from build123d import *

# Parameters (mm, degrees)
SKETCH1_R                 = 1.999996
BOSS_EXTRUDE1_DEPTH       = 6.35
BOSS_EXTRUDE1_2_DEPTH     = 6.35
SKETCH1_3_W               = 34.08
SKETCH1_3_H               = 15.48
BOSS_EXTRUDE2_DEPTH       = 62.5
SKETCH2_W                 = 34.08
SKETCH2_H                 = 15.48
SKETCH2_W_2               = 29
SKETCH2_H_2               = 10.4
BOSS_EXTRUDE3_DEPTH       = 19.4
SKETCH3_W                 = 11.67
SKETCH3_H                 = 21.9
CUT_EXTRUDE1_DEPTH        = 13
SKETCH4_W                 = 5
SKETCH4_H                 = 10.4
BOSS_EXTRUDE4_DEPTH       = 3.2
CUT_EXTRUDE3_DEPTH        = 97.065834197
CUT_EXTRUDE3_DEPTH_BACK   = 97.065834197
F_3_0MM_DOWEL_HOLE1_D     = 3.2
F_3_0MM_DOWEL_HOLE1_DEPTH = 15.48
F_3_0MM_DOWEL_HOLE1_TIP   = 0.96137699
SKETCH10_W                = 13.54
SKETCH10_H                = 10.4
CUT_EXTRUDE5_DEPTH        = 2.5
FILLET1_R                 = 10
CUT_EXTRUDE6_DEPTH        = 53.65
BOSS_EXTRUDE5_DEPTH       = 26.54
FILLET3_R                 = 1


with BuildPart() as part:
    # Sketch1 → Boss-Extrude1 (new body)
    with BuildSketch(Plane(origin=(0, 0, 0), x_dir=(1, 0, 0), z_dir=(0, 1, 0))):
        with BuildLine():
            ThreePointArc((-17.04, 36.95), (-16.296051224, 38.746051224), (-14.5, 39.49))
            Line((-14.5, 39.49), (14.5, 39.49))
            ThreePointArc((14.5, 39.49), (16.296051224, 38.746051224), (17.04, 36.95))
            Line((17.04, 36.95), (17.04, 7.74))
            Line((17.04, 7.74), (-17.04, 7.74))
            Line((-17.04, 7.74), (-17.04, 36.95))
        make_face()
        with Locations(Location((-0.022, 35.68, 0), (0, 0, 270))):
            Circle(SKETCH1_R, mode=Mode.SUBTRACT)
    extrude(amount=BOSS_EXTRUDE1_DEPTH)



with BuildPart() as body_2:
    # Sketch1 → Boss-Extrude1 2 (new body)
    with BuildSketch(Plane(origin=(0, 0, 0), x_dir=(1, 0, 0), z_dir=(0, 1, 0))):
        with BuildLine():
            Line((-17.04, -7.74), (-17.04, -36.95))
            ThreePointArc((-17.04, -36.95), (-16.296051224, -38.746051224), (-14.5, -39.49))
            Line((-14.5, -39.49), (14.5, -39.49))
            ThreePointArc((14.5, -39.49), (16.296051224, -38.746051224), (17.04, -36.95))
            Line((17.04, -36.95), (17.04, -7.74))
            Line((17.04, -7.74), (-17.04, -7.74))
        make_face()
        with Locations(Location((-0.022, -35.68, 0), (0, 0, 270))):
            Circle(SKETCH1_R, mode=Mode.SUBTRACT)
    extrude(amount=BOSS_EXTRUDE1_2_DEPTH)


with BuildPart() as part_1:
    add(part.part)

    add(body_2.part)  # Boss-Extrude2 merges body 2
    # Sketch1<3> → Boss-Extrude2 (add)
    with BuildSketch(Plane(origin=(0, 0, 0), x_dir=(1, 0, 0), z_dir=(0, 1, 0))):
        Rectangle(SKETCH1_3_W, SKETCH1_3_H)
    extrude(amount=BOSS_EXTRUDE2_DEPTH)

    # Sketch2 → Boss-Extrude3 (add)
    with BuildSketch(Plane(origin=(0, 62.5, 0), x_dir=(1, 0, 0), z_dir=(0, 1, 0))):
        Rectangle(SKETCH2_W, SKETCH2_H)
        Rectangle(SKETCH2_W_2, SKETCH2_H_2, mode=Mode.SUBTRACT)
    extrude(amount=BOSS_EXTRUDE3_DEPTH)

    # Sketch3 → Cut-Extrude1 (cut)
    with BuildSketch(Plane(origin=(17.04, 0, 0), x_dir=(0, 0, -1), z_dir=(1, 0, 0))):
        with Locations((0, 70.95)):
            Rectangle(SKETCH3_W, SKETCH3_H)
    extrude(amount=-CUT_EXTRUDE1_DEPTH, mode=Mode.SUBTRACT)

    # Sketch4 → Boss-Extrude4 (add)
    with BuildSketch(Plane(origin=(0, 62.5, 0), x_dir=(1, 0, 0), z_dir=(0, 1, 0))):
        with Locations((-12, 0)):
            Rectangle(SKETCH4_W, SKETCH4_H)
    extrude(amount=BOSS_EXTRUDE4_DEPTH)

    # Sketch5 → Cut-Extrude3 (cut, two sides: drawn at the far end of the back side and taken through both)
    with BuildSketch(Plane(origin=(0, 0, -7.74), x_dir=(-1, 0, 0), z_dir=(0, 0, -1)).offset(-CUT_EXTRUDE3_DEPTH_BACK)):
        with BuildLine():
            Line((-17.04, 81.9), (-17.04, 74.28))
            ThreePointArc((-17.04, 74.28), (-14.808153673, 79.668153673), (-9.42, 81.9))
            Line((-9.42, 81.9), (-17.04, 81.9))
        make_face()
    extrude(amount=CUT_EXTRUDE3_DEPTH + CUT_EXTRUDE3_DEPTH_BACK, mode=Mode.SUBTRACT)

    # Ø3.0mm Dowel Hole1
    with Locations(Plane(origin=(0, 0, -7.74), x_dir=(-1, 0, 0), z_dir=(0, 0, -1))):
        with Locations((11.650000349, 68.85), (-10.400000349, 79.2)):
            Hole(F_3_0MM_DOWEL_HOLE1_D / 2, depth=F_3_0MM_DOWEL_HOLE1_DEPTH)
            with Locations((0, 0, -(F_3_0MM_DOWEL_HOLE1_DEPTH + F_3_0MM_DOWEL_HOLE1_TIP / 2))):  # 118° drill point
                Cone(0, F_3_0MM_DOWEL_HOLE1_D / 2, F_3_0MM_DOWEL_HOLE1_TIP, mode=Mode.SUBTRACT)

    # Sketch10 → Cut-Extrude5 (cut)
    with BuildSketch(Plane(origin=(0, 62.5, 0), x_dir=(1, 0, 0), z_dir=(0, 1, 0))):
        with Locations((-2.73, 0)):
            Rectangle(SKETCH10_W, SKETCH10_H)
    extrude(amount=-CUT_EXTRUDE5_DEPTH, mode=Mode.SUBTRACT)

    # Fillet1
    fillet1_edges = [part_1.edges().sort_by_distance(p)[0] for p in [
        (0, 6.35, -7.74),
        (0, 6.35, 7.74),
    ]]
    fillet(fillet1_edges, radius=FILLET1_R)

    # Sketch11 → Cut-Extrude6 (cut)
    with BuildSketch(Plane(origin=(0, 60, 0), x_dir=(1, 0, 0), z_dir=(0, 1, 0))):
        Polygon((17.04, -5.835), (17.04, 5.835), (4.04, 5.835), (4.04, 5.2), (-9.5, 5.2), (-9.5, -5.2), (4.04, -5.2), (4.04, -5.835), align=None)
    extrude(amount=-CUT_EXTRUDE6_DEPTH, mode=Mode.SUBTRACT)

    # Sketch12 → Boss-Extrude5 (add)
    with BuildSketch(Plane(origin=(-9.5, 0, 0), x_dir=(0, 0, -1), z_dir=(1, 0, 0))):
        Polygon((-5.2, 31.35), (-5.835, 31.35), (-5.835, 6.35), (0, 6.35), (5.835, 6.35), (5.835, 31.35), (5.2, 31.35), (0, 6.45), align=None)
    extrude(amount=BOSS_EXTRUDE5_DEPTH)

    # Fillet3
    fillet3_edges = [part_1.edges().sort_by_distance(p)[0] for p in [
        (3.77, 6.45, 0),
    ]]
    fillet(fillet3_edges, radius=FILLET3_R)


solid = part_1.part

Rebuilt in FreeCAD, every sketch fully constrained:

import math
import FreeCAD as App
import Part
import Sketcher
from FreeCAD import Vector


def edges_at(feature, points):
    """Names of the edges that pass closest to the given points."""
    edges = feature.Shape.Edges
    near = lambda p: min(range(len(edges)), key=lambda i: edges[i].distToShape(Part.Vertex(*p))[0])
    return sorted({f"Edge{near(p) + 1}" for p in points})


def add_polygon(sketch, points):
    """Adds a closed chain of lines whose ends are joined by coincident constraints."""
    first, n = sketch.GeometryCount, len(points)
    for a, b in zip(points, points[1:] + points[:1]):
        sketch.addGeometry(Part.LineSegment(App.Vector(*a, 0), App.Vector(*b, 0)), False)
    for i in range(n):
        sketch.addConstraint(Sketcher.Constraint("Coincident", first + i, 2, first + (i + 1) % n, 1))

doc = App.newDocument("Part")
params = doc.addObject("Spreadsheet::Sheet", "Params")
for row, (alias, value) in enumerate([
    ("sketch1_width", "29 mm"),
    ("sketch1_radius", "2.54 mm"),
    ("sketch1_height", "29.21 mm"),
    ("pad1_length", "6.35 mm"),
    ("sketch2_width", "29 mm"),
    ("sketch2_radius", "2.54 mm"),
    ("sketch2_height", "29.21 mm"),
    ("pad2_length", "6.35 mm"),
    ("sketch3_width", "34.08 mm"),
    ("sketch3_height", "15.48 mm"),
    ("pad3_length", "62.5 mm"),
    ("sketch4_width", "29 mm"),
    ("sketch4_height", "10.4 mm"),
    ("sketch4_width2", "34.08 mm"),
    ("sketch4_height2", "15.48 mm"),
    ("pad4_length", "19.4 mm"),
    ("sketch5_width", "21.9 mm"),
    ("sketch5_height", "11.67 mm"),
    ("pocket1_length", "13 mm"),
    ("sketch6_width", "5 mm"),
    ("sketch6_height", "10.4 mm"),
    ("pad5_length", "3.2 mm"),
    ("sketch7_radius", "7.62 mm"),
    ("sketch8_diameter", "3.2 mm"),
    ("hole_diameter", "3.2 mm"),
    ("hole_depth", "15.48 mm"),
    ("sketch9_height", "10.4 mm"),
    ("sketch9_width", "13.54 mm"),
    ("pocket3_length", "2.5 mm"),
    ("fillet_radius", "10 mm"),
    ("sketch10_width", "13 mm"),
    ("sketch10_height", "10.4 mm"),
    ("sketch10_width2", "13.54 mm"),
    ("sketch10_height2", "11.67 mm"),
    ("pocket4_length", "53.65 mm"),
    ("sketch11_width", "25 mm"),
    ("sketch11_height", "11.67 mm"),
    ("pad6_length", "26.54 mm"),
    ("fillet2_radius", "1 mm"),
], start=1):
    params.set(f"A{row}", alias)
    params.set(f"B{row}", "=" + value)
    params.setAlias(f"B{row}", alias)

body = doc.addObject("PartDesign::Body", "Body")

# Sketch on XZ plane
sketch1 = doc.addObject("Sketcher::SketchObject", "Sketch")
body.addObject(sketch1)
sketch1.AttachmentSupport = (doc.XZ_Plane, [""])
sketch1.MapMode = "FlatFace"
sketch1.addGeometry([
    Part.ArcOfCircle(Part.Circle(Vector(-14.5, -36.9, 0), Vector(0, 0, 1), 2.5), math.radians(-180), math.radians(-90)),  # 0
    Part.LineSegment(Vector(-17, -37, 0), Vector(-17, -7.7, 0)),  # 1
    Part.LineSegment(Vector(-17, -7.7, 0), Vector(17, -7.7, 0)),  # 2
    Part.LineSegment(Vector(17, -7.7, 0), Vector(17, -37, 0)),  # 3
    Part.ArcOfCircle(Part.Circle(Vector(14.5, -36.9, 0), Vector(0, 0, 1), 2.5), math.radians(-90), math.radians(0)),  # 4
    Part.LineSegment(Vector(14.5, -39.5, 0), Vector(-14.5, -39.5, 0)),  # 5
    Part.Circle(Vector(0, -35.7, 0), Vector(0, 0, 1), 2),  # 6
], False)
sketch1.addConstraint([
    Sketcher.Constraint("Tangent", 0, 1, 1, 1),
    Sketcher.Constraint("Coincident", 1, 2, 2, 1),
    Sketcher.Constraint("Coincident", 2, 2, 3, 1),
    Sketcher.Constraint("Tangent", 3, 2, 4, 2),
    Sketcher.Constraint("Tangent", 4, 1, 5, 1),
    Sketcher.Constraint("Tangent", 5, 2, 0, 2),
    Sketcher.Constraint("Vertical", 1),
    Sketcher.Constraint("Horizontal", 2),
    Sketcher.Constraint("Vertical", 3),
    Sketcher.Constraint("Horizontal", 5),
    Sketcher.Constraint("Equal", 0, 4),
    Sketcher.Constraint("DistanceX", 5, 2, 5, 1, 29.0),
    Sketcher.Constraint("Radius", 0, 2.54),
    Sketcher.Constraint("DistanceY", 1, 1, 1, 2, 29.21),
    Sketcher.Constraint("DistanceX", 0, 3, -1, 1, 14.5),
    Sketcher.Constraint("DistanceY", 0, 3, -1, 1, 36.95),
    Sketcher.Constraint("DistanceY", 6, 3, -1, 1, 35.68),
    Sketcher.Constraint("Diameter", 6, 3.999992),
    Sketcher.Constraint("DistanceX", 6, 3, -1, 1, 0.022),
])
sketch1.setExpression("Constraints[11]", "Params.sketch1_width")
sketch1.setExpression("Constraints[12]", "Params.sketch1_radius")
sketch1.setExpression("Constraints[13]", "Params.sketch1_height")
pad1 = doc.addObject("PartDesign::Pad", "Pad")
body.addObject(pad1)
pad1.Profile = sketch1
pad1.setExpression("Length", "Params.pad1_length")
pad1.Reversed = True
body2 = doc.addObject("PartDesign::Body", "Body001")

# Sketch on XZ plane
sketch2 = doc.addObject("Sketcher::SketchObject", "Sketch001")
body2.addObject(sketch2)
sketch2.AttachmentSupport = (doc.getObject("XZ_Plane001"), [""])
sketch2.MapMode = "FlatFace"
sketch2.addGeometry([
    Part.LineSegment(Vector(-17, 7.7, 0), Vector(-17, 37, 0)),  # 0
    Part.ArcOfCircle(Part.Circle(Vector(-14.5, 36.9, 0), Vector(0, 0, 1), 2.5), math.radians(90), math.radians(180)),  # 1
    Part.LineSegment(Vector(-14.5, 39.5, 0), Vector(14.5, 39.5, 0)),  # 2
    Part.ArcOfCircle(Part.Circle(Vector(14.5, 36.9, 0), Vector(0, 0, 1), 2.5), math.radians(0), math.radians(90)),  # 3
    Part.LineSegment(Vector(17, 37, 0), Vector(17, 7.7, 0)),  # 4
    Part.LineSegment(Vector(17, 7.7, 0), Vector(-17, 7.7, 0)),  # 5
    Part.Circle(Vector(0, 35.7, 0), Vector(0, 0, 1), 2),  # 6
], False)
sketch2.addConstraint([
    Sketcher.Constraint("Tangent", 0, 2, 1, 2),
    Sketcher.Constraint("Tangent", 1, 1, 2, 1),
    Sketcher.Constraint("Tangent", 2, 2, 3, 2),
    Sketcher.Constraint("Tangent", 3, 1, 4, 1),
    Sketcher.Constraint("Coincident", 4, 2, 5, 1),
    Sketcher.Constraint("Coincident", 5, 2, 0, 1),
    Sketcher.Constraint("Vertical", 0),
    Sketcher.Constraint("Horizontal", 2),
    Sketcher.Constraint("Vertical", 4),
    Sketcher.Constraint("Horizontal", 5),
    Sketcher.Constraint("Equal", 1, 3),
    Sketcher.Constraint("DistanceX", 2, 1, 2, 2, 29.0),
    Sketcher.Constraint("Radius", 1, 2.54),
    Sketcher.Constraint("DistanceY", 0, 1, 0, 2, 29.21),
    Sketcher.Constraint("DistanceX", 1, 3, -1, 1, 14.5),
    Sketcher.Constraint("DistanceY", -1, 1, 1, 3, 36.95),
    Sketcher.Constraint("DistanceY", -1, 1, 6, 3, 35.68),
    Sketcher.Constraint("Diameter", 6, 3.999992),
    Sketcher.Constraint("DistanceX", 6, 3, -1, 1, 0.022),
])
sketch2.setExpression("Constraints[11]", "Params.sketch2_width")
sketch2.setExpression("Constraints[12]", "Params.sketch2_radius")
sketch2.setExpression("Constraints[13]", "Params.sketch2_height")
pad2 = doc.addObject("PartDesign::Pad", "Pad001")
body2.addObject(pad2)
pad2.Profile = sketch2
pad2.setExpression("Length", "Params.pad2_length")
pad2.Reversed = True
body.AllowCompound = True
doc.recompute()

boolean = doc.addObject("PartDesign::Boolean", "Boolean")
body.addObject(boolean)
boolean.Type = "Fuse"
boolean.addObjects([body2])

# Sketch on XZ plane
sketch3 = doc.addObject("Sketcher::SketchObject", "Sketch002")
body.addObject(sketch3)
sketch3.AttachmentSupport = (doc.XZ_Plane, [""])
sketch3.MapMode = "FlatFace"
add_polygon(sketch3, [(-17, -8), (-17, 8), (17, 8), (17, -8)])  # lines 0-3
sketch3.addConstraint([
    Sketcher.Constraint("Vertical", 0),
    Sketcher.Constraint("Horizontal", 1),
    Sketcher.Constraint("Vertical", 2),
    Sketcher.Constraint("Horizontal", 3),
    Sketcher.Constraint("Symmetric", 0, 2, 2, 2, -1, 1),
    Sketcher.Constraint("DistanceX", 1, 1, 1, 2, 34.08),
    Sketcher.Constraint("DistanceY", 0, 1, 0, 2, 15.48),
])
sketch3.setExpression("Constraints[9]", "Params.sketch3_width")
sketch3.setExpression("Constraints[10]", "Params.sketch3_height")
pad3 = doc.addObject("PartDesign::Pad", "Pad002")
body.addObject(pad3)
pad3.Profile = sketch3
pad3.setExpression("Length", "Params.pad3_length")
pad3.Reversed = True

# Sketch on XZ plane
sketch4 = doc.addObject("Sketcher::SketchObject", "Sketch003")
body.addObject(sketch4)
sketch4.AttachmentSupport = (doc.XZ_Plane, [""])
sketch4.MapMode = "FlatFace"
sketch4.AttachmentOffset = App.Placement(Vector(0, 0, -62.5), App.Rotation())
add_polygon(sketch4, [(-17, -8), (-17, 8), (17, 8), (17, -8)])  # lines 0-3
add_polygon(sketch4, [(14, 5), (-14, 5), (-14, -5), (14, -5)])  # lines 4-7
sketch4.addConstraint([
    Sketcher.Constraint("Vertical", 0),
    Sketcher.Constraint("Horizontal", 1),
    Sketcher.Constraint("Vertical", 2),
    Sketcher.Constraint("Horizontal", 3),
    Sketcher.Constraint("Horizontal", 4),
    Sketcher.Constraint("Vertical", 5),
    Sketcher.Constraint("Horizontal", 6),
    Sketcher.Constraint("Vertical", 7),
    Sketcher.Constraint("Symmetric", 0, 2, 2, 2, -1, 1),
    Sketcher.Constraint("Symmetric", 4, 2, 6, 2, -1, 1),
    Sketcher.Constraint("DistanceX", 4, 2, 4, 1, 29.0),
    Sketcher.Constraint("DistanceY", 5, 2, 5, 1, 10.4),
    Sketcher.Constraint("DistanceX", 1, 1, 1, 2, 34.08),
    Sketcher.Constraint("DistanceY", 0, 1, 0, 2, 15.48),
])
sketch4.setExpression("Constraints[18]", "Params.sketch4_width")
sketch4.setExpression("Constraints[19]", "Params.sketch4_height")
sketch4.setExpression("Constraints[20]", "Params.sketch4_width2")
sketch4.setExpression("Constraints[21]", "Params.sketch4_height2")
pad4 = doc.addObject("PartDesign::Pad", "Pad003")
body.addObject(pad4)
pad4.Profile = sketch4
pad4.setExpression("Length", "Params.pad4_length")
pad4.Reversed = True

# Sketch on YZ plane
sketch5 = doc.addObject("Sketcher::SketchObject", "Sketch004")
body.addObject(sketch5)
sketch5.AttachmentSupport = (doc.YZ_Plane, [""])
sketch5.MapMode = "FlatFace"
sketch5.AttachmentOffset = App.Placement(Vector(0, 0, 17.04), App.Rotation())
add_polygon(sketch5, [(82, 6), (60, 6), (60, -6), (82, -6)])  # lines 0-3
sketch5.addConstraint([
    Sketcher.Constraint("Horizontal", 0),
    Sketcher.Constraint("Vertical", 1),
    Sketcher.Constraint("Horizontal", 2),
    Sketcher.Constraint("Vertical", 3),
    Sketcher.Constraint("DistanceX", 0, 2, 0, 1, 21.9),
    Sketcher.Constraint("DistanceX", -1, 1, 0, 2, 60.0),
    Sketcher.Constraint("DistanceY", 1, 2, 1, 1, 11.67),
    Sketcher.Constraint("DistanceY", -1, 1, 0, 2, 5.835),
])
sketch5.setExpression("Constraints[8]", "Params.sketch5_width")
sketch5.setExpression("Constraints[10]", "Params.sketch5_height")
pocket1 = doc.addObject("PartDesign::Pocket", "Pocket")
body.addObject(pocket1)
pocket1.Profile = sketch5
pocket1.setExpression("Length", "Params.pocket1_length")

# Sketch on XZ plane
sketch6 = doc.addObject("Sketcher::SketchObject", "Sketch005")
body.addObject(sketch6)
sketch6.AttachmentSupport = (doc.XZ_Plane, [""])
sketch6.MapMode = "FlatFace"
sketch6.AttachmentOffset = App.Placement(Vector(0, 0, -62.5), App.Rotation())
add_polygon(sketch6, [(-14, -5), (-14, 5), (-10, 5), (-10, -5)])  # lines 0-3
sketch6.addConstraint([
    Sketcher.Constraint("Vertical", 0),
    Sketcher.Constraint("Horizontal", 1),
    Sketcher.Constraint("Vertical", 2),
    Sketcher.Constraint("Horizontal", 3),
    Sketcher.Constraint("DistanceX", 1, 1, 1, 2, 5.0),
    Sketcher.Constraint("DistanceY", 0, 1, 0, 2, 10.4),
    Sketcher.Constraint("DistanceX", 0, 2, -1, 1, 14.5),
    Sketcher.Constraint("DistanceY", -1, 1, 0, 2, 5.2),
])
sketch6.setExpression("Constraints[8]", "Params.sketch6_width")
sketch6.setExpression("Constraints[9]", "Params.sketch6_height")
pad5 = doc.addObject("PartDesign::Pad", "Pad004")
body.addObject(pad5)
pad5.Profile = sketch6
pad5.setExpression("Length", "Params.pad5_length")
pad5.Reversed = True

# Sketch on XY plane
sketch7 = doc.addObject("Sketcher::SketchObject", "Sketch006")
body.addObject(sketch7)
sketch7.AttachmentSupport = (doc.XY_Plane, [""])
sketch7.MapMode = "FlatFace"
sketch7.AttachmentOffset = App.Placement(Vector(0, 0, -7.74), App.Rotation())
sketch7.addGeometry([
    Part.LineSegment(Vector(17, 82, 0), Vector(17, 74, 0)),
    Part.ArcOfCircle(Part.Circle(Vector(9, 74, 0), Vector(0, 0, 1), 8), math.radians(0), math.radians(90)),
    Part.LineSegment(Vector(9, 82, 0), Vector(17, 82, 0)),
], False)
sketch7.addConstraint([
    Sketcher.Constraint("Tangent", 0, 2, 1, 1),
    Sketcher.Constraint("Tangent", 1, 2, 2, 1),
    Sketcher.Constraint("Coincident", 2, 2, 0, 1),
    Sketcher.Constraint("Vertical", 0),
    Sketcher.Constraint("Horizontal", 2),
    Sketcher.Constraint("Radius", 1, 7.62),
    Sketcher.Constraint("DistanceY", -1, 1, 1, 2, 81.9),
    Sketcher.Constraint("DistanceX", -1, 1, 1, 3, 9.42),
])
sketch7.setExpression("Constraints[5]", "Params.sketch7_radius")
pocket2 = doc.addObject("PartDesign::Pocket", "Pocket001")
body.addObject(pocket2)
pocket2.Profile = sketch7
pocket2.Type = "ThroughAll"
pocket2.Midplane = True

# Sketch on XY plane
sketch8 = doc.addObject("Sketcher::SketchObject", "Sketch007")
body.addObject(sketch8)
sketch8.AttachmentSupport = (doc.XY_Plane, [""])
sketch8.MapMode = "FlatFace"
sketch8.AttachmentOffset = App.Placement(Vector(0, 0, -7.74), App.Rotation())
sketch8.addGeometry([
    Part.Circle(Vector(-11.7, 68.8, 0), Vector(0, 0, 1), 1.6),
    Part.Circle(Vector(10.4, 79.2, 0), Vector(0, 0, 1), 1.6),
], False)
sketch8.addConstraint([
    Sketcher.Constraint("Equal", 0, 1),
    Sketcher.Constraint("Diameter", 0, 3.2),
    Sketcher.Constraint("DistanceX", -1, 1, 1, 3, 10.4),
    Sketcher.Constraint("DistanceY", -1, 1, 1, 3, 79.2),
    Sketcher.Constraint("DistanceX", 0, 3, -1, 1, 11.65),
    Sketcher.Constraint("DistanceY", -1, 1, 0, 3, 68.85),
])
sketch8.setExpression("Constraints[1]", "Params.sketch8_diameter")
doc.recompute()
hole = doc.addObject("PartDesign::Hole", "Hole")
body.addObject(hole)
hole.Profile = sketch8
hole.ThreadType = "None"
hole.setExpression("Diameter", "Params.hole_diameter")
hole.DepthType = "Dimension"
hole.setExpression("Depth", "Params.hole_depth")
hole.DrillPoint = "Angled"
hole.DrillPointAngle = 118
hole.Reversed = True

# Sketch on XZ plane
sketch9 = doc.addObject("Sketcher::SketchObject", "Sketch008")
body.addObject(sketch9)
sketch9.AttachmentSupport = (doc.XZ_Plane, [""])
sketch9.MapMode = "FlatFace"
sketch9.AttachmentOffset = App.Placement(Vector(0, 0, -62.5), App.Rotation())
add_polygon(sketch9, [(-10, -5), (-10, 5), (4, 5), (4, -5)])  # lines 0-3
sketch9.addConstraint([
    Sketcher.Constraint("Vertical", 0),
    Sketcher.Constraint("Horizontal", 1),
    Sketcher.Constraint("Vertical", 2),
    Sketcher.Constraint("Horizontal", 3),
    Sketcher.Constraint("DistanceY", 0, 1, 0, 2, 10.4),
    Sketcher.Constraint("DistanceX", 1, 1, 1, 2, 13.54),
    Sketcher.Constraint("DistanceX", 0, 2, -1, 1, 9.5),
    Sketcher.Constraint("DistanceY", -1, 1, 0, 2, 5.2),
])
sketch9.setExpression("Constraints[8]", "Params.sketch9_height")
sketch9.setExpression("Constraints[9]", "Params.sketch9_width")
pocket3 = doc.addObject("PartDesign::Pocket", "Pocket002")
body.addObject(pocket3)
pocket3.Profile = sketch9
pocket3.setExpression("Length", "Params.pocket3_length")
pocket3.Reversed = True
doc.recompute()

fillet = doc.addObject("PartDesign::Fillet", "Fillet")
body.addObject(fillet)
fillet.Base = (pocket3, edges_at(pocket3, [(0, 6.35, -7.74), (0, 6.35, 7.74)]))
fillet.setExpression("Radius", "Params.fillet_radius")

# Sketch on XZ plane
sketch10 = doc.addObject("Sketcher::SketchObject", "Sketch009")
body.addObject(sketch10)
sketch10.AttachmentSupport = (doc.XZ_Plane, [""])
sketch10.MapMode = "FlatFace"
sketch10.AttachmentOffset = App.Placement(Vector(0, 0, -60), App.Rotation())
add_polygon(sketch10, [(17, 5.8), (17, -5.8), (4, -5.8), (4, -5.2), (-9.5, -5.2), (-9.5, 5.2), (4, 5.2), (4, 5.8)])  # lines 0-7
sketch10.addConstraint([
    Sketcher.Constraint("Vertical", 0),
    Sketcher.Constraint("Horizontal", 1),
    Sketcher.Constraint("Vertical", 2),
    Sketcher.Constraint("Horizontal", 3),
    Sketcher.Constraint("Vertical", 4),
    Sketcher.Constraint("Horizontal", 5),
    Sketcher.Constraint("Vertical", 6),
    Sketcher.Constraint("Horizontal", 7),
    Sketcher.Constraint("Symmetric", 2, 2, 5, 2, -1),
    Sketcher.Constraint("Equal", 2, 6),
    Sketcher.Constraint("DistanceX", 1, 2, 1, 1, 13.0),
    Sketcher.Constraint("DistanceY", 4, 1, 4, 2, 10.4),
    Sketcher.Constraint("DistanceX", 3, 2, 3, 1, 13.54),
    Sketcher.Constraint("DistanceY", 0, 2, 0, 1, 11.67),
    Sketcher.Constraint("DistanceX", 3, 2, -1, 1, 9.5),
])
sketch10.setExpression("Constraints[18]", "Params.sketch10_width")
sketch10.setExpression("Constraints[19]", "Params.sketch10_height")
sketch10.setExpression("Constraints[20]", "Params.sketch10_width2")
sketch10.setExpression("Constraints[21]", "Params.sketch10_height2")
pocket4 = doc.addObject("PartDesign::Pocket", "Pocket003")
body.addObject(pocket4)
pocket4.Profile = sketch10
pocket4.setExpression("Length", "Params.pocket4_length")
pocket4.Reversed = True

# Sketch on YZ plane
sketch11 = doc.addObject("Sketcher::SketchObject", "Sketch010")
body.addObject(sketch11)
sketch11.AttachmentSupport = (doc.YZ_Plane, [""])
sketch11.MapMode = "FlatFace"
sketch11.AttachmentOffset = App.Placement(Vector(0, 0, -9.5), App.Rotation())
add_polygon(sketch11, [(31.4, 5.2), (31.4, 5.8), (6.3, 5.8), (6.3, -5.8), (31.4, -5.8), (31.4, -5.2), (6.5, 0)])  # lines 0-6
sketch11.addConstraint([
    Sketcher.Constraint("Vertical", 0),
    Sketcher.Constraint("Horizontal", 1),
    Sketcher.Constraint("Vertical", 2),
    Sketcher.Constraint("Horizontal", 3),
    Sketcher.Constraint("Vertical", 4),
    Sketcher.Constraint("Symmetric", 0, 2, 3, 2, -1),
    Sketcher.Constraint("PointOnObject", 5, 2, -1),
    Sketcher.Constraint("Equal", 0, 4),
    Sketcher.Constraint("DistanceX", 1, 2, 1, 1, 25.0),
    Sketcher.Constraint("DistanceY", 2, 2, 2, 1, 11.67),
    Sketcher.Constraint("DistanceY", 4, 2, -1, 1, 5.2),
    Sketcher.Constraint("DistanceX", 1, 2, 5, 2, 0.1),
    Sketcher.Constraint("DistanceX", -1, 1, 0, 2, 31.35),
])
sketch11.setExpression("Constraints[15]", "Params.sketch11_width")
sketch11.setExpression("Constraints[16]", "Params.sketch11_height")
pad6 = doc.addObject("PartDesign::Pad", "Pad005")
body.addObject(pad6)
pad6.Profile = sketch11
pad6.setExpression("Length", "Params.pad6_length")
doc.recompute()

fillet2 = doc.addObject("PartDesign::Fillet", "Fillet001")
body.addObject(fillet2)
fillet2.Base = (pad6, edges_at(pad6, [(3.77, 6.45, 0)]))
fillet2.setExpression("Radius", "Params.fillet2_radius")

doc.recompute()
